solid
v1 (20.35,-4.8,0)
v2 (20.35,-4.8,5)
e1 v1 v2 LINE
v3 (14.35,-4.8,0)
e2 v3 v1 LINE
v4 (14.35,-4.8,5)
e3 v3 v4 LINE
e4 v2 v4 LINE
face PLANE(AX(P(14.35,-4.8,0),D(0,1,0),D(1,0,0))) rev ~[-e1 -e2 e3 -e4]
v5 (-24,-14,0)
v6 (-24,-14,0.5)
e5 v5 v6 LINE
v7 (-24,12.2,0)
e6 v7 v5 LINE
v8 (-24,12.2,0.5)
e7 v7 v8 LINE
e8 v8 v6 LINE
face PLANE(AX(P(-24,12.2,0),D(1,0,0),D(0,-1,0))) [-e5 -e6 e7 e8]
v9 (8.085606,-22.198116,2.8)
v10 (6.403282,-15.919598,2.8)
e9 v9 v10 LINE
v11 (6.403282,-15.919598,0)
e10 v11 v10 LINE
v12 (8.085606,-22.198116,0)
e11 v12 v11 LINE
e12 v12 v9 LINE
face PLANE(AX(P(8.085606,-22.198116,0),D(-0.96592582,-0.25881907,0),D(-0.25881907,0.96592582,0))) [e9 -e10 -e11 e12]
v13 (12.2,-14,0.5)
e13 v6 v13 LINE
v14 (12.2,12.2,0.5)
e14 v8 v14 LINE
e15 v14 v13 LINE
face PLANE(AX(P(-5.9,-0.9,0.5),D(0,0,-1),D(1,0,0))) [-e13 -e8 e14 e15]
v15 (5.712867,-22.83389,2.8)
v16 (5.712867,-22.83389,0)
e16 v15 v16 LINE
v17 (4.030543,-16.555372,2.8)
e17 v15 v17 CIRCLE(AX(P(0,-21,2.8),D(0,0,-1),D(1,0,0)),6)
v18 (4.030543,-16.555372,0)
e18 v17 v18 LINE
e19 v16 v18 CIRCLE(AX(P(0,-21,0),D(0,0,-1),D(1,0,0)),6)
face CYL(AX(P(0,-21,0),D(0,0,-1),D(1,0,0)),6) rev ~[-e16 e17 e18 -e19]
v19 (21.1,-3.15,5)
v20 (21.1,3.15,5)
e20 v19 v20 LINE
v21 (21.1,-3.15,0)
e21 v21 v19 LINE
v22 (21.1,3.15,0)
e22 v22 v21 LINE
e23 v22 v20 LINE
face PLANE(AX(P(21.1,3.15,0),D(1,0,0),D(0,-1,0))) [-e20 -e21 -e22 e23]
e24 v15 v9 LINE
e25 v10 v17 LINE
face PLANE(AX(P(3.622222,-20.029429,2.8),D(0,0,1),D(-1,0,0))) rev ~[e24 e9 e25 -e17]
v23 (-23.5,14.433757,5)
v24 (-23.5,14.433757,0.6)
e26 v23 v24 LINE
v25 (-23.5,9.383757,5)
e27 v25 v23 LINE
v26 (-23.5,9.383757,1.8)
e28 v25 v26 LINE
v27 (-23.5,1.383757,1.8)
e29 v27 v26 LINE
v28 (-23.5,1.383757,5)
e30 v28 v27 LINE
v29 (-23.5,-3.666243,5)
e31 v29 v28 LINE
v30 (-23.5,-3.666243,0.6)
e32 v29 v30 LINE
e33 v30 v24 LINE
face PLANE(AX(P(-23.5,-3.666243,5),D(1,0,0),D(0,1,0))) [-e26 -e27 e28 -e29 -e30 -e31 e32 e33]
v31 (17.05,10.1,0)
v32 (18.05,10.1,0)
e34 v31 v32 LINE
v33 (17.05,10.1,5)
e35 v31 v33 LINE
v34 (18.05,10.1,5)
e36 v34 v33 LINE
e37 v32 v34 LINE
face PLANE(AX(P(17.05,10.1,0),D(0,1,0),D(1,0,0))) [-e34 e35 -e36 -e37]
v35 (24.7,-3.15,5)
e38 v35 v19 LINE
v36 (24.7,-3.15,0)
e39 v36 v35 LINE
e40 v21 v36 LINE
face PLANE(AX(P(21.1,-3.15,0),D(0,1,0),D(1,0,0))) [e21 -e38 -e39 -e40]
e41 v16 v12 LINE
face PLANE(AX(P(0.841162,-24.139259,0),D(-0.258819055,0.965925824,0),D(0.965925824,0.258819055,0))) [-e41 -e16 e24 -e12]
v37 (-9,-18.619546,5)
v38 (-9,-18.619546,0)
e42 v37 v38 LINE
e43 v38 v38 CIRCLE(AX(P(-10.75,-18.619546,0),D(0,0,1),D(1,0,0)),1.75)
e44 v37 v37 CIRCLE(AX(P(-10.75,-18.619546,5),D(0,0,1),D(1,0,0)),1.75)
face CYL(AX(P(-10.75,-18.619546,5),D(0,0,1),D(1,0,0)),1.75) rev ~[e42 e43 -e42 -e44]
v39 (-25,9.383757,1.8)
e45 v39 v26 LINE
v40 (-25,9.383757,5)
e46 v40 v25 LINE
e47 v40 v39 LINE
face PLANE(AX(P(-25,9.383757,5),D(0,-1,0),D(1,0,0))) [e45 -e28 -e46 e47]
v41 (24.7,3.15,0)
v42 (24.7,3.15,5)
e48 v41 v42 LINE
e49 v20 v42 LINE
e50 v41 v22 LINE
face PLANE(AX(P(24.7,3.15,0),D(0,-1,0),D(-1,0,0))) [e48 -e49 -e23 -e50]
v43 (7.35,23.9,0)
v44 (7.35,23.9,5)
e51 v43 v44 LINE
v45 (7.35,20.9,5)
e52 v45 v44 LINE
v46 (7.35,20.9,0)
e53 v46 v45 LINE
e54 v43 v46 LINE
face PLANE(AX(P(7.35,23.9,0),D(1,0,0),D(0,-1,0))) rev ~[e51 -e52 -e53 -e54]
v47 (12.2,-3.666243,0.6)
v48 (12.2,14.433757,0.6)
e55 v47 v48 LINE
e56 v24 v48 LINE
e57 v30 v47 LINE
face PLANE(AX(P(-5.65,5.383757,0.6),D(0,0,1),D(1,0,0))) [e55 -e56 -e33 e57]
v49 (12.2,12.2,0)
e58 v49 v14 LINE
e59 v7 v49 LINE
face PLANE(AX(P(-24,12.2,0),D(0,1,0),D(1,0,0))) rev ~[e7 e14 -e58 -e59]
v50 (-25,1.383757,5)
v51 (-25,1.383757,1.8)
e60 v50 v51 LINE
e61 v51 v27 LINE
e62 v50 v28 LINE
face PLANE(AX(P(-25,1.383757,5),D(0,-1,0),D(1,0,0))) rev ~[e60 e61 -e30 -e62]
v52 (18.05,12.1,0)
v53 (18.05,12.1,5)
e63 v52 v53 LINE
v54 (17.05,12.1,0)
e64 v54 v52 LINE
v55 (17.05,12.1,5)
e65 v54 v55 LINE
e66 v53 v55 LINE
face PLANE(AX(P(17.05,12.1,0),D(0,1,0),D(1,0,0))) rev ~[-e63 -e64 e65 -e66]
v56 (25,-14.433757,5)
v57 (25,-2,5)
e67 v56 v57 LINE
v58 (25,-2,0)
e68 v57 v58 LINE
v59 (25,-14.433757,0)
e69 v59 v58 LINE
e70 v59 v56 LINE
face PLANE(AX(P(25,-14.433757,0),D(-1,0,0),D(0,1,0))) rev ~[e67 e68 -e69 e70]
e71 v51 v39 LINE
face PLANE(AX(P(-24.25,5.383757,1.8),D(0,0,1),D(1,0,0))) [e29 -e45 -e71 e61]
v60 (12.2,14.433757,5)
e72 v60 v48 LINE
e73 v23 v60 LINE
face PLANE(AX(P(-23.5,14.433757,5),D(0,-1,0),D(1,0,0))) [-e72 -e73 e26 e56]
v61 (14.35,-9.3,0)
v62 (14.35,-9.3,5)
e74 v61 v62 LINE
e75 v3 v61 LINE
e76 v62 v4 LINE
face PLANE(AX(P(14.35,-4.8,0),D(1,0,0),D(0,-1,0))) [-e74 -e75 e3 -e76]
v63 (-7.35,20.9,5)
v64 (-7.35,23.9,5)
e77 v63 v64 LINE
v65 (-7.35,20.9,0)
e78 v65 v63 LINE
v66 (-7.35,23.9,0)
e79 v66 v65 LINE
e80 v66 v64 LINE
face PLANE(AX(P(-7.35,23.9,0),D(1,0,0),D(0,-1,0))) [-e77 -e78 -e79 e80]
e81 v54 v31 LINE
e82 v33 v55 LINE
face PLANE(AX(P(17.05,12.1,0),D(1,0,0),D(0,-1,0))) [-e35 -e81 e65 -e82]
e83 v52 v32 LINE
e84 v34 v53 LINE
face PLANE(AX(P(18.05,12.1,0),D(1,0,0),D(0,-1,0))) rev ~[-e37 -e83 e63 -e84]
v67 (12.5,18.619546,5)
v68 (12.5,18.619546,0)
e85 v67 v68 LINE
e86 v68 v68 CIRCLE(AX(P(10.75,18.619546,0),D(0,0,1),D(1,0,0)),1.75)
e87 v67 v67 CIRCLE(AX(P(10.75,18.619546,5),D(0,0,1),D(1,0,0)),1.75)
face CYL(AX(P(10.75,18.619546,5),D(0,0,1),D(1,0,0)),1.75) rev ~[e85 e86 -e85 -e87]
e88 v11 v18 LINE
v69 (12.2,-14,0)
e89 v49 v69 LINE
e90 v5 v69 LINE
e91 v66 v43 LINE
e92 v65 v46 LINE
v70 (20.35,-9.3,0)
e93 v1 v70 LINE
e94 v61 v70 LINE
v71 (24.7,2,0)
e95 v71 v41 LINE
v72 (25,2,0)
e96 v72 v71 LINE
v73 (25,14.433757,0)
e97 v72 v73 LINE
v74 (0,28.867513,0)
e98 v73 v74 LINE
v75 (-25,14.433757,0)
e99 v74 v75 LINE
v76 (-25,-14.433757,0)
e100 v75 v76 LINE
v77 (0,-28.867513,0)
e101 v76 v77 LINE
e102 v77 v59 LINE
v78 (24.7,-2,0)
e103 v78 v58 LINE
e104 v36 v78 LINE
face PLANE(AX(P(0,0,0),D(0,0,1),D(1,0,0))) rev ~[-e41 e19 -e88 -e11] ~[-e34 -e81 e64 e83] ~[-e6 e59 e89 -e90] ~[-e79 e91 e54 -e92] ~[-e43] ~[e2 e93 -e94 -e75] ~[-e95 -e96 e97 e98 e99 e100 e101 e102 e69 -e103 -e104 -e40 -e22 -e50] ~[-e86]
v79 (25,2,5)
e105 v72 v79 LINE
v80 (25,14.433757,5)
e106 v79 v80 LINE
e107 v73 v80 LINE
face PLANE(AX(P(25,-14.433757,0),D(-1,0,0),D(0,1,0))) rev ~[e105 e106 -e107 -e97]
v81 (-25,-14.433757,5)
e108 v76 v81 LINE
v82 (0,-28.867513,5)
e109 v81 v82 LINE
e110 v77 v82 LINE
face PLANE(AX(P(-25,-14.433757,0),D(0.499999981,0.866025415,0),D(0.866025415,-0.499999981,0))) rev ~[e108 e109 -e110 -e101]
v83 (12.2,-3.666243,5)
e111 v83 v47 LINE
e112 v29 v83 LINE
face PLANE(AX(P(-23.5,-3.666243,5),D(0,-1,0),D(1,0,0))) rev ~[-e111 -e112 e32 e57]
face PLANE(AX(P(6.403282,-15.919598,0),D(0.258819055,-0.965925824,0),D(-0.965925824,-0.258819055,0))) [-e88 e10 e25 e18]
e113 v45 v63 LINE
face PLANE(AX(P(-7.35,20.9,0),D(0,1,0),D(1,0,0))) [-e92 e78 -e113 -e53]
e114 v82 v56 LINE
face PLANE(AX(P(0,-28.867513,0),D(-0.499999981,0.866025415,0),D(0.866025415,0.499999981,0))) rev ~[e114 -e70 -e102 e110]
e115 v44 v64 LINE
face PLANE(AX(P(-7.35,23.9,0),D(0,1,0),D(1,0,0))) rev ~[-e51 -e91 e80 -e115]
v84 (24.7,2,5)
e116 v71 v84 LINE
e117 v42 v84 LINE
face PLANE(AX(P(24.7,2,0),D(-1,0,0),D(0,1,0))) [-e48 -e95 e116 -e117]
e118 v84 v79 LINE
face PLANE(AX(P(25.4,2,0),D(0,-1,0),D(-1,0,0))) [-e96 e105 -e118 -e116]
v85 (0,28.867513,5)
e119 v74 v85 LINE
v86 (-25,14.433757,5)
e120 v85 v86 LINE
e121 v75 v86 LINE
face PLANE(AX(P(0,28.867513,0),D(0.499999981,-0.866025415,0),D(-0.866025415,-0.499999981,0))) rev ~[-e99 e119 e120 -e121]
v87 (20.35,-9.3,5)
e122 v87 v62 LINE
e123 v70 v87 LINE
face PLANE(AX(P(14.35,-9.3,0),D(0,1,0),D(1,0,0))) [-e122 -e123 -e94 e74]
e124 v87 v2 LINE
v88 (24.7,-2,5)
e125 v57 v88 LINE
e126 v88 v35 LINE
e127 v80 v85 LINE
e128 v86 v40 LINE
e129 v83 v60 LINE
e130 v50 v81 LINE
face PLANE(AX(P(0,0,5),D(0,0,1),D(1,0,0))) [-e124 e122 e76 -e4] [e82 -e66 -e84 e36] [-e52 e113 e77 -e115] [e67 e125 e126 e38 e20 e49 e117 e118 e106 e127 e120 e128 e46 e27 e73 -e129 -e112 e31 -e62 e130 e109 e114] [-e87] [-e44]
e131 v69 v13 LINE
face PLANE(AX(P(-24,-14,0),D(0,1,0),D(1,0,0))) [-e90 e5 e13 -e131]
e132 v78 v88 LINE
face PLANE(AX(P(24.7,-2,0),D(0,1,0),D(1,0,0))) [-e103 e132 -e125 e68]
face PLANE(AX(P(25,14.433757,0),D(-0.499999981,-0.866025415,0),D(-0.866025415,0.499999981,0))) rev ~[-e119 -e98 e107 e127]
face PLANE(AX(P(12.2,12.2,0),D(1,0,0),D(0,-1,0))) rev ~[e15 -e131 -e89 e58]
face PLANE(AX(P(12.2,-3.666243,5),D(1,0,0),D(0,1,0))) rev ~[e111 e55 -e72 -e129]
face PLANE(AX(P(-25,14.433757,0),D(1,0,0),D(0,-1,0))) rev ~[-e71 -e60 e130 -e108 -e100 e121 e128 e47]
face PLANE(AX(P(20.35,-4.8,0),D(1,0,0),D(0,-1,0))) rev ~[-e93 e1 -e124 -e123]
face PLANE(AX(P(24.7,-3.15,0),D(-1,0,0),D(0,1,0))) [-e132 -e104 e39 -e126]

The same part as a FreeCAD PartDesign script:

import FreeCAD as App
import Part
import Sketcher
from FreeCAD import Vector
Q = App.Units.Quantity

doc = App.newDocument("Part")
body = doc.addObject("PartDesign::Body", "Body")

sketch1 = body.newObject("Sketcher::SketchObject", "Sketch")
sketch1.AttachmentSupport = (doc.getObject("XY_Plane"), [""])
sketch1.MapMode = "FlatFace"
sketch1.addGeometry([
    Part.LineSegment(Vector(-25, 14, 0), Vector(-25, -14, 0)),
    Part.LineSegment(Vector(-25, -14, 0), Vector(0, -29, 0)),
    Part.LineSegment(Vector(0, -29, 0), Vector(25, -14, 0)),
    Part.LineSegment(Vector(25, -14, 0), Vector(25, 14, 0)),
    Part.LineSegment(Vector(25, 14, 0), Vector(0, 29, 0)),
    Part.LineSegment(Vector(0, 29, 0), Vector(-25, 14, 0)),
], False)
sketch1.addConstraint([
    Sketcher.Constraint("Coincident", 0, 2, 1, 1),
    Sketcher.Constraint("Coincident", 1, 2, 2, 1),
    Sketcher.Constraint("Coincident", 2, 2, 3, 1),
    Sketcher.Constraint("Coincident", 3, 2, 4, 1),
    Sketcher.Constraint("Coincident", 4, 2, 5, 1),
    Sketcher.Constraint("Coincident", 5, 2, 0, 1),
    Sketcher.Constraint("Vertical", 0),
    Sketcher.Constraint("Vertical", 3),
    Sketcher.Constraint("Symmetric", 0, 2, 3, 2, -1, 1),
    Sketcher.Constraint("Symmetric", 1, 2, 4, 2, -1, 1),
    Sketcher.Constraint("PointOnObject", 1, 2, -2),
    Sketcher.Constraint("Parallel", 2, 5),
    Sketcher.Constraint("Horizontal", 0, 2, 2, 2),
    Sketcher.Constraint("Angle", 1, Q("-29.999999 deg")),
    Sketcher.Constraint("DistanceX", 0, 2, -1, 1, Q("25 mm")),
    Sketcher.Constraint("DistanceY", 0, 2, 0, 1, Q("28.867514 mm")),
])
pad1 = body.newObject("PartDesign::Pad", "Pad")
pad1.Profile = sketch1
pad1.Length = 5

sketch2 = body.newObject("Sketcher::SketchObject", "Sketch001")
sketch2.AttachmentSupport = (doc.getObject("XY_Plane"), [""])
sketch2.MapMode = "FlatFace"
sketch2.AttachmentOffset = App.Placement(Vector(0, 0, 5), App.Rotation())
sketch2.addGeometry([
    Part.Circle(Vector(-10.8, -18.6, 0), Vector(0, 0, 1), 1.8),
    Part.Circle(Vector(10.8, 18.6, 0), Vector(0, 0, 1), 1.8),
], False)
sketch2.addConstraint([
    Sketcher.Constraint("Equal", 0, 1),
    Sketcher.Constraint("Symmetric", 0, 3, 1, 3, -1, 1),
    Sketcher.Constraint("Diameter", 0, Q("3.5 mm")),
    Sketcher.Constraint("DistanceX", 0, 3, 1, 3, Q("21.5 mm")),
    Sketcher.Constraint("DistanceY", 0, 3, -1, 1, Q("18.619546 mm")),
])
pocket1 = body.newObject("PartDesign::Pocket", "Pocket")
pocket1.Profile = sketch2
pocket1.Type = "ThroughAll"

sketch3 = body.newObject("Sketcher::SketchObject", "Sketch002")
sketch3.AttachmentSupport = (doc.getObject("XY_Plane"), [""])
sketch3.MapMode = "FlatFace"
sketch3.addGeometry([
    Part.LineSegment(Vector(-24, -14, 0), Vector(-24, 12, 0)),
    Part.LineSegment(Vector(-24, 12, 0), Vector(12, 12, 0)),
    Part.LineSegment(Vector(12, 12, 0), Vector(12, -14, 0)),
    Part.LineSegment(Vector(12, -14, 0), Vector(-24, -14, 0)),
], False)
sketch3.addConstraint([
    Sketcher.Constraint("Coincident", 0, 2, 1, 1),
    Sketcher.Constraint("Coincident", 1, 2, 2, 1),
    Sketcher.Constraint("Coincident", 2, 2, 3, 1),
    Sketcher.Constraint("Coincident", 3, 2, 0, 1),
    Sketcher.Constraint("Vertical", 0),
    Sketcher.Constraint("Horizontal", 1),
    Sketcher.Constraint("Vertical", 2),
    Sketcher.Constraint("Horizontal", 3),
    Sketcher.Constraint("DistanceX", 1, 1, 1, 2, Q("36.2 mm")),
    Sketcher.Constraint("DistanceY", 0, 1, 0, 2, Q("26.2 mm")),
    Sketcher.Constraint("DistanceX", 0, 2, -1, 1, Q("24 mm")),
    Sketcher.Constraint("DistanceY", 2, 2, -1, 1, Q("14 mm")),
])
pocket2 = body.newObject("PartDesign::Pocket", "Pocket001")
pocket2.Profile = sketch3
pocket2.Length = 0.5
pocket2.Reversed = True

sketch4 = body.newObject("Sketcher::SketchObject", "Sketch003")
sketch4.AttachmentSupport = (doc.getObject("XY_Plane"), [""])
sketch4.MapMode = "FlatFace"
sketch4.addGeometry(Part.Circle(Vector(0, -21, 0), Vector(0, 0, 1), 6), False)
sketch4.addConstraint([
    Sketcher.Constraint("PointOnObject", 0, 3, -2),
    Sketcher.Constraint("Diameter", 0, Q("12 mm")),
    Sketcher.Constraint("DistanceY", 0, 3, -1, 1, Q("21 mm")),
])
pocket3 = body.newObject("PartDesign::Pocket", "Pocket002")
pocket3.Profile = sketch4
pocket3.Length = 2.8
pocket3.Reversed = True

sketch5 = body.newObject("Sketcher::SketchObject", "Sketch004")
sketch5.AttachmentSupport = (doc.getObject("XY_Plane"), [""])
sketch5.MapMode = "FlatFace"
sketch5.addGeometry([
    Part.LineSegment(Vector(8, -22, 0), Vector(1, -24, 0)),
    Part.LineSegment(Vector(1, -24, 0), Vector(-1, -18, 0)),
    Part.LineSegment(Vector(-1, -18, 0), Vector(6, -16, 0)),
    Part.LineSegment(Vector(6, -16, 0), Vector(8, -22, 0)),
], False)
sketch5.addConstraint([
    Sketcher.Constraint("Coincident", 0, 2, 1, 1),
    Sketcher.Constraint("Coincident", 1, 2, 2, 1),
    Sketcher.Constraint("Coincident", 2, 2, 3, 1),
    Sketcher.Constraint("Coincident", 3, 2, 0, 1),
    Sketcher.Constraint("Perpendicular", 0, 1),
    Sketcher.Constraint("Perpendicular", 1, 2),
    Sketcher.Constraint("Perpendicular", 2, 3),
    Sketcher.Constraint("Angle", 0, Q("-164.999999 deg")),
    Sketcher.Constraint("Distance", 0, Q("7.5 mm")),
    Sketcher.Constraint("Distance", 1, Q("6.5 mm")),
    Sketcher.Constraint("DistanceX", -1, 1, 0, 2, Q("0.841162 mm")),
    Sketcher.Constraint("DistanceY", 0, 2, -1, 1, Q("24.139259 mm")),
])
pocket4 = body.newObject("PartDesign::Pocket", "Pocket003")
pocket4.Profile = sketch5
pocket4.Length = 2.8
pocket4.Reversed = True

sketch6 = body.newObject("Sketcher::SketchObject", "Sketch005")
sketch6.AttachmentSupport = (doc.getObject("XY_Plane"), [""])
sketch6.MapMode = "FlatFace"
sketch6.addGeometry([
    Part.LineSegment(Vector(14.3, -9.3, 0), Vector(14.3, -4.8, 0)),
    Part.LineSegment(Vector(14.3, -4.8, 0), Vector(20.4, -4.8, 0)),
    Part.LineSegment(Vector(20.4, -4.8, 0), Vector(20.4, -9.3, 0)),
    Part.LineSegment(Vector(20.4, -9.3, 0), Vector(14.3, -9.3, 0)),
], False)
sketch6.addConstraint([
    Sketcher.Constraint("Coincident", 0, 2, 1, 1),
    Sketcher.Constraint("Coincident", 1, 2, 2, 1),
    Sketcher.Constraint("Coincident", 2, 2, 3, 1),
    Sketcher.Constraint("Coincident", 3, 2, 0, 1),
    Sketcher.Constraint("Vertical", 0),
    Sketcher.Constraint("Horizontal", 1),
    Sketcher.Constraint("Vertical", 2),
    Sketcher.Constraint("Horizontal", 3),
    Sketcher.Constraint("DistanceX", 1, 1, 1, 2, Q("6 mm")),
    Sketcher.Constraint("DistanceY", 0, 1, 0, 2, Q("4.5 mm")),
    Sketcher.Constraint("DistanceY", 0, 2, -1, 1, Q("4.8 mm")),
    Sketcher.Constraint("DistanceX", -1, 1, 0, 2, Q("14.35 mm")),
])
pocket5 = body.newObject("PartDesign::Pocket", "Pocket004")
pocket5.Profile = sketch6
pocket5.Type = "ThroughAll"
pocket5.Reversed = True

sketch7 = body.newObject("Sketcher::SketchObject", "Sketch006")
sketch7.AttachmentSupport = (doc.getObject("XY_Plane"), [""])
sketch7.MapMode = "FlatFace"
sketch7.addGeometry([
    Part.LineSegment(Vector(-7.3, 20.9, 0), Vector(-7.3, 23.9, 0)),
    Part.LineSegment(Vector(-7.3, 23.9, 0), Vector(7.3, 23.9, 0)),
    Part.LineSegment(Vector(7.3, 23.9, 0), Vector(7.3, 20.9, 0)),
    Part.LineSegment(Vector(7.3, 20.9, 0), Vector(-7.3, 20.9, 0)),
], False)
sketch7.addConstraint([
    Sketcher.Constraint("Coincident", 0, 2, 1, 1),
    Sketcher.Constraint("Coincident", 1, 2, 2, 1),
    Sketcher.Constraint("Coincident", 2, 2, 3, 1),
    Sketcher.Constraint("Coincident", 3, 2, 0, 1),
    Sketcher.Constraint("Vertical", 0),
    Sketcher.Constraint("Horizontal", 1),
    Sketcher.Constraint("Vertical", 2),
    Sketcher.Constraint("Horizontal", 3),
    Sketcher.Constraint("DistanceY", 0, 1, 0, 2, Q("3 mm")),
    Sketcher.Constraint("DistanceX", 1, 1, 1, 2, Q("14.7 mm")),
    Sketcher.Constraint("DistanceY", -1, 1, 0, 2, Q("23.9 mm")),
    Sketcher.Constraint("DistanceX", 0, 2, -1, 1, Q("7.35 mm")),
])
pocket6 = body.newObject("PartDesign::Pocket", "Pocket005")
pocket6.Profile = sketch7
pocket6.Type = "ThroughAll"
pocket6.Reversed = True

sketch8 = body.newObject("Sketcher::SketchObject", "Sketch007")
sketch8.AttachmentSupport = (doc.getObject("XY_Plane"), [""])
sketch8.MapMode = "FlatFace"
sketch8.AttachmentOffset = App.Placement(Vector(0, 0, 5), App.Rotation())
sketch8.addGeometry([
    Part.LineSegment(Vector(-24, 14, 0), Vector(-24, -4, 0)),
    Part.LineSegment(Vector(-24, -4, 0), Vector(12, -4, 0)),
    Part.LineSegment(Vector(12, -4, 0), Vector(12, 14, 0)),
    Part.LineSegment(Vector(12, 14, 0), Vector(-24, 14, 0)),
], False)
sketch8.addConstraint([
    Sketcher.Constraint("Coincident", 0, 2, 1, 1),
    Sketcher.Constraint("Coincident", 1, 2, 2, 1),
    Sketcher.Constraint("Coincident", 2, 2, 3, 1),
    Sketcher.Constraint("Coincident", 3, 2, 0, 1),
    Sketcher.Constraint("Vertical", 0),
    Sketcher.Constraint("Horizontal", 1),
    Sketcher.Constraint("Vertical", 2),
    Sketcher.Constraint("Horizontal", 3),
    Sketcher.Constraint("DistanceX", 1, 1, 1, 2, Q("35.7 mm")),
    Sketcher.Constraint("DistanceY", 0, 2, 0, 1, Q("18.1 mm")),
    Sketcher.Constraint("DistanceX", 0, 2, -1, 1, Q("23.5 mm")),
    Sketcher.Constraint("DistanceY", 0, 2, -1, 1, Q("3.666243 mm")),
])
pocket7 = body.newObject("PartDesign::Pocket", "Pocket006")
pocket7.Profile = sketch8
pocket7.Length = 4.4

sketch9 = body.newObject("Sketcher::SketchObject", "Sketch008")
sketch9.AttachmentSupport = (doc.getObject("XY_Plane"), [""])
sketch9.MapMode = "FlatFace"
sketch9.AttachmentOffset = App.Placement(Vector(0, 0, 5), App.Rotation())
sketch9.addGeometry([
    Part.LineSegment(Vector(-25, 9.4, 0), Vector(-25, 1.4, 0)),
    Part.LineSegment(Vector(-25, 1.4, 0), Vector(-23.5, 1.4, 0)),
    Part.LineSegment(Vector(-23.5, 1.4, 0), Vector(-23.5, 9.4, 0)),
    Part.LineSegment(Vector(-23.5, 9.4, 0), Vector(-25, 9.4, 0)),
], False)
sketch9.addConstraint([
    Sketcher.Constraint("Coincident", 0, 2, 1, 1),
    Sketcher.Constraint("Coincident", 1, 2, 2, 1),
    Sketcher.Constraint("Coincident", 2, 2, 3, 1),
    Sketcher.Constraint("Coincident", 3, 2, 0, 1),
    Sketcher.Constraint("Vertical", 0),
    Sketcher.Constraint("Horizontal", 1),
    Sketcher.Constraint("Vertical", 2),
    Sketcher.Constraint("Horizontal", 3),
    Sketcher.Constraint("DistanceY", 0, 2, 0, 1, Q("8 mm")),
    Sketcher.Constraint("DistanceX", 1, 1, 1, 2, Q("1.5 mm")),
    Sketcher.Constraint("DistanceX", 0, 2, -1, 1, Q("25 mm")),
    Sketcher.Constraint("DistanceY", -1, 1, 0, 2, Q("1.383757 mm")),
])
pocket8 = body.newObject("PartDesign::Pocket", "Pocket007")
pocket8.Profile = sketch9
pocket8.Length = 3.2

sketch10 = body.newObject("Sketcher::SketchObject", "Sketch009")
sketch10.AttachmentSupport = (doc.getObject("XY_Plane"), [""])
sketch10.MapMode = "FlatFace"
sketch10.addGeometry([
    Part.LineSegment(Vector(24.7, -3.1, 0), Vector(21.1, -3.1, 0)),
    Part.LineSegment(Vector(21.1, -3.1, 0), Vector(21.1, 3.1, 0)),
    Part.LineSegment(Vector(21.1, 3.1, 0), Vector(24.7, 3.1, 0)),
    Part.LineSegment(Vector(24.7, 3.1, 0), Vector(24.7, 2, 0)),
    Part.LineSegment(Vector(24.7, 2, 0), Vector(25.4, 2, 0)),
    Part.LineSegment(Vector(25.4, 2, 0), Vector(25.4, -2, 0)),
    Part.LineSegment(Vector(25.4, -2, 0), Vector(24.7, -2, 0)),
    Part.LineSegment(Vector(24.7, -2, 0), Vector(24.7, -3.1, 0)),
], False)
sketch10.addConstraint([
    Sketcher.Constraint("Coincident", 0, 2, 1, 1),
    Sketcher.Constraint("Coincident", 1, 2, 2, 1),
    Sketcher.Constraint("Coincident", 2, 2, 3, 1),
    Sketcher.Constraint("Coincident", 3, 2, 4, 1),
    Sketcher.Constraint("Coincident", 4, 2, 5, 1),
    Sketcher.Constraint("Coincident", 5, 2, 6, 1),
    Sketcher.Constraint("Coincident", 6, 2, 7, 1),
    Sketcher.Constraint("Coincident", 7, 2, 0, 1),
    Sketcher.Constraint("Horizontal", 0),
    Sketcher.Constraint("Vertical", 1),
    Sketcher.Constraint("Horizontal", 2),
    Sketcher.Constraint("Vertical", 3),
    Sketcher.Constraint("Horizontal", 4),
    Sketcher.Constraint("Vertical", 5),
    Sketcher.Constraint("Horizontal", 6),
    Sketcher.Constraint("Vertical", 7),
    Sketcher.Constraint("Symmetric", 3, 2, 6, 2, -1),
    Sketcher.Constraint("Equal", 3, 7),
    Sketcher.Constraint("DistanceY", 5, 2, 5, 1, Q("4 mm")),
    Sketcher.Constraint("DistanceX", 0, 2, 0, 1, Q("3.6 mm")),
    Sketcher.Constraint("DistanceX", 4, 1, 4, 2, Q("0.7 mm")),
    Sketcher.Constraint("DistanceY", 1, 1, 1, 2, Q("6.3 mm")),
    Sketcher.Constraint("DistanceX", -1, 1, 0, 2, Q("21.1 mm")),
])
pocket9 = body.newObject("PartDesign::Pocket", "Pocket008")
pocket9.Profile = sketch10
pocket9.Type = "ThroughAll"
pocket9.Reversed = True

sketch11 = body.newObject("Sketcher::SketchObject", "Sketch010")
sketch11.AttachmentSupport = (doc.getObject("XY_Plane"), [""])
sketch11.MapMode = "FlatFace"
sketch11.addGeometry([
    Part.LineSegment(Vector(17.1, 10.1, 0), Vector(17.1, 12.1, 0)),
    Part.LineSegment(Vector(17.1, 12.1, 0), Vector(18.1, 12.1, 0)),
    Part.LineSegment(Vector(18.1, 12.1, 0), Vector(18.1, 10.1, 0)),
    Part.LineSegment(Vector(18.1, 10.1, 0), Vector(17.1, 10.1, 0)),
], False)
sketch11.addConstraint([
    Sketcher.Constraint("Coincident", 0, 2, 1, 1),
    Sketcher.Constraint("Coincident", 1, 2, 2, 1),
    Sketcher.Constraint("Coincident", 2, 2, 3, 1),
    Sketcher.Constraint("Coincident", 3, 2, 0, 1),
    Sketcher.Constraint("Vertical", 0),
    Sketcher.Constraint("Horizontal", 1),
    Sketcher.Constraint("Vertical", 2),
    Sketcher.Constraint("Horizontal", 3),
    Sketcher.Constraint("DistanceX", 1, 1, 1, 2, Q("1 mm")),
    Sketcher.Constraint("DistanceY", 0, 1, 0, 2, Q("2 mm")),
    Sketcher.Constraint("DistanceY", -1, 1, 0, 2, Q("12.1 mm")),
    Sketcher.Constraint("DistanceX", -1, 1, 0, 2, Q("17.05 mm")),
])
pocket10 = body.newObject("PartDesign::Pocket", "Pocket009")
pocket10.Profile = sketch11
pocket10.Type = "ThroughAll"
pocket10.Reversed = True

doc.recompute()
